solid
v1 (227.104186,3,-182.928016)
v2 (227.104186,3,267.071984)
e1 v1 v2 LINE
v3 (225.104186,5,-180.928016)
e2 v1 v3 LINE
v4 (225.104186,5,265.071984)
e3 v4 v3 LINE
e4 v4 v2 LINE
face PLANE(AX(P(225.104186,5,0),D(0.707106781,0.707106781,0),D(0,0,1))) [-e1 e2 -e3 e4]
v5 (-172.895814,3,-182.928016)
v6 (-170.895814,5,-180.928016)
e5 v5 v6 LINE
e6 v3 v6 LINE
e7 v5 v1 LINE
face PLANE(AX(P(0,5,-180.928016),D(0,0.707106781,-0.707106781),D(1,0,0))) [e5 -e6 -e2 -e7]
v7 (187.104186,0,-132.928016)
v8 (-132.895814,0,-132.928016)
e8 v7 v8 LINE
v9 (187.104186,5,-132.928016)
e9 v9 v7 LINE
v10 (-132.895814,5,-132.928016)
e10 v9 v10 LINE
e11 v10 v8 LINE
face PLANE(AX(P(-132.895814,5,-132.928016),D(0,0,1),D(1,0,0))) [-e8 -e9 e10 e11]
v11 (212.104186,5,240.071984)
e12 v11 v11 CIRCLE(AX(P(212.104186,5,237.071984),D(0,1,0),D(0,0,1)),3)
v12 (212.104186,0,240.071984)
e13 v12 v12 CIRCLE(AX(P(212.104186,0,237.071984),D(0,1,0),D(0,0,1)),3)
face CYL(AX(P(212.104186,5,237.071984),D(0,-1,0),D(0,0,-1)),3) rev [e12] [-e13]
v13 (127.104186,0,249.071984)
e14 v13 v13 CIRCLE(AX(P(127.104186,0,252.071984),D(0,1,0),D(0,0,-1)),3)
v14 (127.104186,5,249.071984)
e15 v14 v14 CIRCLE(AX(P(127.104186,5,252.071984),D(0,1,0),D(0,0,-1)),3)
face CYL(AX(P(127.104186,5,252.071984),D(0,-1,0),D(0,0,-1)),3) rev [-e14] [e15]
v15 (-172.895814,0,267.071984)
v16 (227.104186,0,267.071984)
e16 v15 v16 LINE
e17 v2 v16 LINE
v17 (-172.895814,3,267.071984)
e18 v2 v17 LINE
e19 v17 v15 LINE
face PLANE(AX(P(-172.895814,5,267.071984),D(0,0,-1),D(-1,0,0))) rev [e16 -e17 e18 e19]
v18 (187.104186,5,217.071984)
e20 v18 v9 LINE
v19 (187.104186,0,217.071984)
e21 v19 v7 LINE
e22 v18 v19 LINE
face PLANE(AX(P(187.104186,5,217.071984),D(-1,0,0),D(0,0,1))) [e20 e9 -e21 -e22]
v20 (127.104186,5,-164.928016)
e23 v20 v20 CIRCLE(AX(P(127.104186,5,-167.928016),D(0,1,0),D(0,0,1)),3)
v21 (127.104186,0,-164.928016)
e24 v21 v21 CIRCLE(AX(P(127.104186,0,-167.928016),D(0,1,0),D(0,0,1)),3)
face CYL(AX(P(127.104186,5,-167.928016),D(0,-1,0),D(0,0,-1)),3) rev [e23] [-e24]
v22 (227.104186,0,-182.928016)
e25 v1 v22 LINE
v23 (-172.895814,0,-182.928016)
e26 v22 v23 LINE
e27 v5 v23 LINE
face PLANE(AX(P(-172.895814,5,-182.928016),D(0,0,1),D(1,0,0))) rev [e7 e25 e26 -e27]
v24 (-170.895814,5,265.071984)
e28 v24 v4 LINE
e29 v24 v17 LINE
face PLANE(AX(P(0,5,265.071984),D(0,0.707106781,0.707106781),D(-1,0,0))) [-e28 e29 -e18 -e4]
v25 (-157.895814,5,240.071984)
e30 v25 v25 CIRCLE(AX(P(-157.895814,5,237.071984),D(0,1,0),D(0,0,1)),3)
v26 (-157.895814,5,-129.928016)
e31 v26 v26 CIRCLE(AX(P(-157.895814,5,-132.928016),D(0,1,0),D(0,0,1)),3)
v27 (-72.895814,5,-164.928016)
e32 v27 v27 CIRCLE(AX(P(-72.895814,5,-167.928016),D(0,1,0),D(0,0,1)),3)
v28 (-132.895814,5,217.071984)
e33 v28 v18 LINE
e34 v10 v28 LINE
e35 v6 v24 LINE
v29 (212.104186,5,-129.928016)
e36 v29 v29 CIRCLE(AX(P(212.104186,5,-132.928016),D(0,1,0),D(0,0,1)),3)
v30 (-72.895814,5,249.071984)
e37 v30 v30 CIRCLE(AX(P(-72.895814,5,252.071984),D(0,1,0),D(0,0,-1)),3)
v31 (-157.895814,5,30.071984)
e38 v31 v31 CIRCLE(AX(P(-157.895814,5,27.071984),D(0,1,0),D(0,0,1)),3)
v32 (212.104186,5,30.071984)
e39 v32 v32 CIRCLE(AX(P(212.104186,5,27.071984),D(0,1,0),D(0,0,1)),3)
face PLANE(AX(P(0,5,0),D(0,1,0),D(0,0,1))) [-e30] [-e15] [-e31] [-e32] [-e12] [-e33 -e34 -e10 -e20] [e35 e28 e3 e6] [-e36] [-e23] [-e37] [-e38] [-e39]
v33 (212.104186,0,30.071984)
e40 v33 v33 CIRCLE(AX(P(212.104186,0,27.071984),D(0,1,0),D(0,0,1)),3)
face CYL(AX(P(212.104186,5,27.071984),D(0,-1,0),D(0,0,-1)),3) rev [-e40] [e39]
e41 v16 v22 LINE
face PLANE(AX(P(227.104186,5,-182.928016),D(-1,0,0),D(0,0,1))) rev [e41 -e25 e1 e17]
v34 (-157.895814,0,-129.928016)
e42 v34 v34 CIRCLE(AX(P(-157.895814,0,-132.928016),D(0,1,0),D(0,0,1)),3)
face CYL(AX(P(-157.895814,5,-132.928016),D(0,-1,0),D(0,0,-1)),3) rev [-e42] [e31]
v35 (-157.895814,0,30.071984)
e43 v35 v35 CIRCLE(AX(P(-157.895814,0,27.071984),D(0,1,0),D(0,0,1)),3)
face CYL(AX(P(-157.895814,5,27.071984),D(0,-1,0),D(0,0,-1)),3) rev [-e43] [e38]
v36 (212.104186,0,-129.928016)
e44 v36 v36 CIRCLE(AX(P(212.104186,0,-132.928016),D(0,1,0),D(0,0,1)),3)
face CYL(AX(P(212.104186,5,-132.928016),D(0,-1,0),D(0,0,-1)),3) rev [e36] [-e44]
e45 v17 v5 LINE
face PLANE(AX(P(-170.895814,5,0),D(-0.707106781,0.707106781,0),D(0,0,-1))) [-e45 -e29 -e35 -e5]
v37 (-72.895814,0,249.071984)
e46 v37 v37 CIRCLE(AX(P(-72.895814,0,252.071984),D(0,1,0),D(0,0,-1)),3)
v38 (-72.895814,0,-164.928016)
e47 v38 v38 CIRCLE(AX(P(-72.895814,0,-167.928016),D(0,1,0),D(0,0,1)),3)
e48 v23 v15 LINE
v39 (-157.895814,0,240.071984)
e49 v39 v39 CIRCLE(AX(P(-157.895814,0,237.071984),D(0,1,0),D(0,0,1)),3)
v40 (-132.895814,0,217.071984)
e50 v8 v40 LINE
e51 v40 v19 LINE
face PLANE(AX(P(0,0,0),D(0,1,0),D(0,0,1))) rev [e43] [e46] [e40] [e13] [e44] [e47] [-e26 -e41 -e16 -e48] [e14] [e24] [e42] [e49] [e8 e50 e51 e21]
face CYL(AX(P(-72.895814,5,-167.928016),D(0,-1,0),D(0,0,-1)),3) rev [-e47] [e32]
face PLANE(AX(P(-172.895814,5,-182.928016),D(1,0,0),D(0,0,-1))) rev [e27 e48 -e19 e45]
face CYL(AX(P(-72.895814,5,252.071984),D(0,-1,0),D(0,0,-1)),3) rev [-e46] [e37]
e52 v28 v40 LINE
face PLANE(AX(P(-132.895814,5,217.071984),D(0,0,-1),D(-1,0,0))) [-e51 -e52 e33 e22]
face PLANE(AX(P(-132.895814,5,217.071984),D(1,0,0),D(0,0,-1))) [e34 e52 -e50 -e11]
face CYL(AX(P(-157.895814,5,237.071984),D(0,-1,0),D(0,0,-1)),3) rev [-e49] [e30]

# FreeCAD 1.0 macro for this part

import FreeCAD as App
import Part
import Sketcher

V = App.Vector


def edges_at(feature, points):
    """Names of the edges that pass closest to the given points."""
    edges = feature.Shape.Edges
    near = lambda p: min(range(len(edges)), key=lambda i: edges[i].distToShape(Part.Vertex(*p))[0])
    return sorted({f"Edge{near(p) + 1}" for p in points})


def add_polygon(sketch, points):
    """Adds a closed chain of lines whose ends are joined by coincident constraints."""
    first, n = sketch.GeometryCount, len(points)
    for a, b in zip(points, points[1:] + points[:1]):
        sketch.addGeometry(Part.LineSegment(App.Vector(*a, 0), App.Vector(*b, 0)), False)
    for i in range(n):
        sketch.addConstraint(Sketcher.Constraint("Coincident", first + i, 2, first + (i + 1) % n, 1))

doc = App.newDocument("Part")
body = doc.addObject("PartDesign::Body", "Body")

# Sketch on XZ plane
sketch1 = body.newObject("Sketcher::SketchObject", "Sketch")
sketch1.AttachmentSupport = (doc.getObject("XZ_Plane"), [""])
sketch1.MapMode = "FlatFace"
add_polygon(sketch1, [(-172.9, -182.9), (-172.9, 267.1), (227.1, 267.1), (227.1, -182.9)])  # lines 0-3
sketch1.addGeometry(Part.Circle(V(-157.9, 237.1, 0), V(0, 0, 1), 3), False)  # 4
sketch1.addGeometry(Part.Circle(V(-72.9, 252.1, 0), V(0, 0, 1), 3), False)  # 5
sketch1.addGeometry(Part.Circle(V(127.1, 252.1, 0), V(0, 0, 1), 3), False)  # 6
sketch1.addGeometry(Part.Circle(V(212.1, 237.1, 0), V(0, 0, 1), 3), False)  # 7
sketch1.addGeometry(Part.Circle(V(-157.9, 27.1, 0), V(0, 0, 1), 3), False)  # 8
sketch1.addGeometry(Part.Circle(V(-157.9, -132.9, 0), V(0, 0, 1), 3), False)  # 9
sketch1.addGeometry(Part.Circle(V(-72.9, -167.9, 0), V(0, 0, 1), 3), False)  # 10
add_polygon(sketch1, [(187.1, 217.1), (-132.9, 217.1), (-132.9, -132.9), (187.1, -132.9)])  # lines 11-14
sketch1.addGeometry(Part.Circle(V(212.1, 27.1, 0), V(0, 0, 1), 3), False)  # 15
sketch1.addGeometry(Part.Circle(V(127.1, -167.9, 0), V(0, 0, 1), 3), False)  # 16
sketch1.addGeometry(Part.Circle(V(212.1, -132.9, 0), V(0, 0, 1), 3), False)  # 17
sketch1.addConstraint([
    Sketcher.Constraint("Vertical", 0),
    Sketcher.Constraint("Horizontal", 1),
    Sketcher.Constraint("Vertical", 2),
    Sketcher.Constraint("Horizontal", 3),
    Sketcher.Constraint("Horizontal", 11),
    Sketcher.Constraint("Vertical", 12),
    Sketcher.Constraint("Horizontal", 13),
    Sketcher.Constraint("Vertical", 14),
    Sketcher.Constraint("Equal", 4, 5),
    Sketcher.Constraint("Equal", 5, 6),
    Sketcher.Constraint("Equal", 6, 7),
    Sketcher.Constraint("Equal", 7, 8),
    Sketcher.Constraint("Equal", 8, 9),
    Sketcher.Constraint("Equal", 9, 10),
    Sketcher.Constraint("Equal", 10, 15),
    Sketcher.Constraint("Equal", 15, 16),
    Sketcher.Constraint("Equal", 16, 17),
    Sketcher.Constraint("Horizontal", 5, 3, 6, 3),
    Sketcher.Constraint("Horizontal", 4, 3, 7, 3),
    Sketcher.Constraint("Horizontal", 8, 3, 15, 3),
    Sketcher.Constraint("Horizontal", 10, 3, 16, 3),
    Sketcher.Constraint("Horizontal", 9, 3, 17, 3),
    Sketcher.Constraint("Horizontal", 17, 3, 12, 2),
    Sketcher.Constraint("Vertical", 4, 3, 8, 3),
    Sketcher.Constraint("Vertical", 8, 3, 9, 3),
    Sketcher.Constraint("Vertical", 5, 3, 10, 3),
    Sketcher.Constraint("Vertical", 7, 3, 15, 3),
    Sketcher.Constraint("Vertical", 6, 3, 16, 3),
    Sketcher.Constraint("Vertical", 15, 3, 17, 3),
    Sketcher.Constraint("Diameter", 4, 6.0),
    Sketcher.Constraint("DistanceX", 1, 1, 1, 2, 400.0),
    Sketcher.Constraint("DistanceX", 11, 2, 11, 1, 320.0),
    Sketcher.Constraint("DistanceY", 0, 1, 0, 2, 450.0),
    Sketcher.Constraint("DistanceY", 12, 2, 12, 1, 350.0),
    Sketcher.Constraint("DistanceX", 4, 3, 5, 3, 85.0),
    Sketcher.Constraint("DistanceY", 4, 3, 5, 3, 15.0),
    Sketcher.Constraint("DistanceX", 5, 3, 6, 3, 200.0),
    Sketcher.Constraint("DistanceX", 6, 3, 7, 3, 85.0),
    Sketcher.Constraint("DistanceY", 8, 3, 4, 3, 210.0),
    Sketcher.Constraint("DistanceY", 9, 3, 8, 3, 160.0),
    Sketcher.Constraint("DistanceY", 10, 3, 9, 3, 35.0),
    Sketcher.Constraint("DistanceX", 0, 2, 4, 3, 15.0),
    Sketcher.Constraint("DistanceY", 4, 3, 0, 2, 30.0),
    Sketcher.Constraint("DistanceX", 4, 3, 11, 2, 25.0),
    Sketcher.Constraint("DistanceX", 4, 3, -1, 1, 157.895814),
    Sketcher.Constraint("DistanceY", -1, 1, 4, 3, 237.071984),
])
pad1 = body.newObject("PartDesign::Pad", "Pad")
pad1.Profile = sketch1
pad1.Length = 5
pad1.Reversed = True
doc.recompute()

chamfer = body.newObject("PartDesign::Chamfer", "Chamfer")
chamfer.Base = (pad1, edges_at(pad1, [
    (227.104, 5, 42.072),
    (27.104, 5, -182.928),
    (-172.896, 5, 42.072),
    (27.104, 5, 267.072),
]))
chamfer.Size = 2

doc.recompute()
